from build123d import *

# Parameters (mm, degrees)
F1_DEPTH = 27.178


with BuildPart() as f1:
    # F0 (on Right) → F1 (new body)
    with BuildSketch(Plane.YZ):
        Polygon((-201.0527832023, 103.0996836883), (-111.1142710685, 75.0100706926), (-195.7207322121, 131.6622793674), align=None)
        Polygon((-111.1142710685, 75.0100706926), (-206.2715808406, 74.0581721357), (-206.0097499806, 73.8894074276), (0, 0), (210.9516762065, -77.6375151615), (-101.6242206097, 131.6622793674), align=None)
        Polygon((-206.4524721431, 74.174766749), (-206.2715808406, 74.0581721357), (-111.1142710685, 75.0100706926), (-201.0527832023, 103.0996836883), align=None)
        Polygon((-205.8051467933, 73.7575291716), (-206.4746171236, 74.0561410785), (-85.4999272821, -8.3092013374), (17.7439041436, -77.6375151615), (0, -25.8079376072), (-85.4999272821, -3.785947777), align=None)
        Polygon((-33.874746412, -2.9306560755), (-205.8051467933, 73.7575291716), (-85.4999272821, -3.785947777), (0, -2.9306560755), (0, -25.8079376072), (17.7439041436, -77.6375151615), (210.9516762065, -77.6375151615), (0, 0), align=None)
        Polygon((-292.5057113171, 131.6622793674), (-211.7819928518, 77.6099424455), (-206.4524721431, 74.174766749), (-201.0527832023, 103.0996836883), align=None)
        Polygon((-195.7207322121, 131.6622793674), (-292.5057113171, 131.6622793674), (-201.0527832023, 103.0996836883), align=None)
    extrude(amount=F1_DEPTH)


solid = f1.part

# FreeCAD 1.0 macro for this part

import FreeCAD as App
import Part
import Sketcher

V = App.Vector

doc = App.newDocument("Part")
params = doc.addObject("Spreadsheet::Sheet", "Params")
for row, (alias, value) in enumerate([
    ("pad1_length", "1.07 in"),
], start=1):
    params.set(f"A{row}", alias)
    params.set(f"B{row}", "=" + value)
    params.setAlias(f"B{row}", alias)

body = doc.addObject("PartDesign::Body", "Body")

# Sketch on YZ plane
sketch1 = body.newObject("Sketcher::SketchObject", "Sketch")
sketch1.AttachmentSupport = (doc.getObject("YZ_Plane"), [""])
sketch1.MapMode = "FlatFace"
sketch1.addGeometry([
    Part.LineSegment(V(-111.114271, 75.010071, 0), V(-195.720732, 131.662279, 0)),  # 0
    Part.LineSegment(V(-195.720732, 131.662279, 0), V(-292.505711, 131.662279, 0)),  # 1
    Part.LineSegment(V(-292.505711, 131.662279, 0), V(-211.781993, 77.609942, 0)),  # 2
    Part.LineSegment(V(-211.781993, 77.609942, 0), V(-206.452472, 74.174767, 0)),  # 3
    Part.LineSegment(V(-206.452472, 74.174767, 0), V(-206.271581, 74.058172, 0)),  # 4
    Part.LineSegment(V(-206.271581, 74.058172, 0), V(-206.00975, 73.889407, 0)),  # 5
    Part.LineSegment(V(-206.00975, 73.889407, 0), V(0, 0, 0)),  # 6
    Part.LineSegment(V(0, 0, 0), V(-33.874746, -2.930656, 0)),  # 7
    Part.LineSegment(V(-33.874746, -2.930656, 0), V(-205.805147, 73.757529, 0)),  # 8
    Part.LineSegment(V(-205.805147, 73.757529, 0), V(-206.474617, 74.056141, 0)),  # 9
    Part.LineSegment(V(-206.474617, 74.056141, 0), V(-85.499927, -8.309201, 0)),  # 10
    Part.LineSegment(V(-85.499927, -8.309201, 0), V(17.743904, -77.637515, 0)),  # 11
    Part.LineSegment(V(17.743904, -77.637515, 0), V(210.951676, -77.637515, 0)),  # 12
    Part.LineSegment(V(210.951676, -77.637515, 0), V(-101.624221, 131.662279, 0)),  # 13
    Part.LineSegment(V(-101.624221, 131.662279, 0), V(-111.114271, 75.010071, 0)),  # 14
    Part.LineSegment(V(-85.499927, -3.785948, 0), V(0, -2.930656, 0)),  # 15
    Part.LineSegment(V(0, -2.930656, 0), V(0, -25.807938, 0)),  # 16
    Part.LineSegment(V(0, -25.807938, 0), V(-85.499927, -3.785948, 0)),  # 17
], False)
sketch1.addConstraint([
    Sketcher.Constraint("Coincident", 0, 2, 1, 1),
    Sketcher.Constraint("Coincident", 1, 2, 2, 1),
    Sketcher.Constraint("Coincident", 2, 2, 3, 1),
    Sketcher.Constraint("Coincident", 3, 2, 4, 1),
    Sketcher.Constraint("Coincident", 4, 2, 5, 1),
    Sketcher.Constraint("Coincident", 5, 2, 6, 1),
    Sketcher.Constraint("Coincident", 6, 2, 7, 1),
    Sketcher.Constraint("Coincident", 7, 2, 8, 1),
    Sketcher.Constraint("Coincident", 8, 2, 9, 1),
    Sketcher.Constraint("Coincident", 9, 2, 10, 1),
    Sketcher.Constraint("Coincident", 10, 2, 11, 1),
    Sketcher.Constraint("Coincident", 11, 2, 12, 1),
    Sketcher.Constraint("Coincident", 12, 2, 13, 1),
    Sketcher.Constraint("Coincident", 13, 2, 14, 1),
    Sketcher.Constraint("Coincident", 14, 2, 0, 1),
    Sketcher.Constraint("Coincident", 15, 2, 16, 1),
    Sketcher.Constraint("Coincident", 16, 2, 17, 1),
    Sketcher.Constraint("Coincident", 17, 2, 15, 1),
    Sketcher.Constraint("Horizontal", 1),
    Sketcher.Constraint("Horizontal", 12),
    Sketcher.Constraint("Vertical", 16),
    Sketcher.Constraint("Coincident", 6, 2, -1, 1),
    Sketcher.Constraint("PointOnObject", 15, 2, -2),
    Sketcher.Constraint("DistanceX", 1, 2, 1, 1, 96.784979),
    Sketcher.Constraint("DistanceY", 16, 2, 16, 1, 22.877282),
    Sketcher.Constraint("DistanceY", 10, 2, -1, 1, 8.309201),
    Sketcher.Constraint("DistanceY", 7, 2, 2, 2, 80.540599),
    Sketcher.Constraint("DistanceY", 9, 2, 2, 2, 3.553801),
    Sketcher.Constraint("DistanceY", 4, 2, 14, 2, 0.951899),
    Sketcher.Constraint("Distance", 0, 101.822031),
    Sketcher.Constraint("Distance", 3, 6.34068),
    Sketcher.Constraint("Distance", 4, 0.215211),
    Sketcher.Constraint("Distance", 9, 0.733048),
    Sketcher.Constraint("Distance", 10, 146.352059),
    Sketcher.Constraint("Distance", 14, 57.441569),
    Sketcher.Constraint("Distance", 17, 88.290462),
    Sketcher.Constraint("DistanceX", 12, 1, 12, 2, 193.207772),
    Sketcher.Constraint("DistanceY", -1, 1, 0, 2, 131.662279),
    Sketcher.Constraint("DistanceX", 1, 2, -1, 1, 292.505711),
    Sketcher.Constraint("DistanceX", 4, 2, -1, 1, 206.271581),
    Sketcher.Constraint("DistanceX", 5, 2, -1, 1, 206.00975),
    Sketcher.Constraint("DistanceY", -1, 1, 8, 2, 73.757529),
    Sketcher.Constraint("DistanceY", -1, 1, 9, 2, 74.056141),
    Sketcher.Constraint("DistanceX", 13, 2, -1, 1, 101.624221),
    Sketcher.Constraint("DistanceY", -1, 1, 13, 2, 131.662279),
    Sketcher.Constraint("DistanceX", 2, 2, 3, 2, 5.329521),
    Sketcher.Constraint("DistanceY", 5, 2, 3, 2, 0.285359),
    Sketcher.Constraint("DistanceX", 10, 2, 7, 2, 51.625181),
    Sketcher.Constraint("DistanceX", 7, 2, 11, 2, 51.618651),
    Sketcher.Constraint("DistanceY", 11, 2, 7, 2, 74.706859),
    Sketcher.Constraint("DistanceY", 11, 2, 15, 2, 74.706859),
    Sketcher.Constraint("DistanceX", 17, 2, 7, 2, 51.625181),
    Sketcher.Constraint("DistanceY", 17, 2, 7, 2, 0.855292),
])
pad1 = body.newObject("PartDesign::Pad", "Pad")
pad1.Profile = sketch1
pad1.setExpression("Length", "Params.pad1_length")

doc.recompute()
